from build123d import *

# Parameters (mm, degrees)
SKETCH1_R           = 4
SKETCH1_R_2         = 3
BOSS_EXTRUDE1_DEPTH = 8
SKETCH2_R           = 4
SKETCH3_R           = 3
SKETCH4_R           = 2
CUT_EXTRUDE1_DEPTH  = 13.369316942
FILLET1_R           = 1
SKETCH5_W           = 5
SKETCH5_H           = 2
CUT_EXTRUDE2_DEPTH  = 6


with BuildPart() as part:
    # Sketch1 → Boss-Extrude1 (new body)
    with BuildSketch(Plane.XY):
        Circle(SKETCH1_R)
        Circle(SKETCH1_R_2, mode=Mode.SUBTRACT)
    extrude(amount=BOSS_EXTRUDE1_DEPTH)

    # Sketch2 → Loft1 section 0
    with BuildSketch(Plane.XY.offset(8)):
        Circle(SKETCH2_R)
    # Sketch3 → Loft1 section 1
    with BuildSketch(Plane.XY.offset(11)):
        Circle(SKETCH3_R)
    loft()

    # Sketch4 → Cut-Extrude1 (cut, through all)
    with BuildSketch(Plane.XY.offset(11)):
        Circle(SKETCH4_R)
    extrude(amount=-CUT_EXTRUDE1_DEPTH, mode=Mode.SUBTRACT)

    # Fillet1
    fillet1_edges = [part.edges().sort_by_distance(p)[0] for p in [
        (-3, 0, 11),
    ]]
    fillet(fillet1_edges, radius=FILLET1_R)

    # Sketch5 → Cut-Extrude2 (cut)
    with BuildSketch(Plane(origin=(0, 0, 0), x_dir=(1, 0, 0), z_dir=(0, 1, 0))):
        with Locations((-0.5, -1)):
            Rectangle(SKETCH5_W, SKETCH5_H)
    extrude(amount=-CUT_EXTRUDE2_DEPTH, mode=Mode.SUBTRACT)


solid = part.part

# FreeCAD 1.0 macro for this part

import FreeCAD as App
import Part
import Sketcher
from FreeCAD import Vector


def edges_at(feature, points):
    """Names of the edges that pass closest to the given points."""
    edges = feature.Shape.Edges
    near = lambda p: min(range(len(edges)), key=lambda i: edges[i].distToShape(Part.Vertex(*p))[0])
    return sorted({f"Edge{near(p) + 1}" for p in points})

doc = App.newDocument("Part")
body = doc.addObject("PartDesign::Body", "Body")

sketch1 = body.newObject("Sketcher::SketchObject", "Sketch")
sketch1.AttachmentSupport = (doc.getObject("XY_Plane"), [""])
sketch1.MapMode = "FlatFace"
sketch1.addGeometry([
    Part.Circle(Vector(0, 0, 0), Vector(0, 0, 1), 4),
    Part.Circle(Vector(0, 0, 0), Vector(0, 0, 1), 3),
], False)
sketch1.addConstraint([
    Sketcher.Constraint("Coincident", 0, 3, -1, 1),
    Sketcher.Constraint("Coincident", 1, 3, -1, 1),
    Sketcher.Constraint("Diameter", 0, 8.0),
    Sketcher.Constraint("Diameter", 1, 6.0),
])
pad1 = body.newObject("PartDesign::Pad", "Pad")
pad1.Profile = sketch1
pad1.Length = 8

sketch2 = body.newObject("Sketcher::SketchObject", "Sketch001")
sketch2.AttachmentSupport = (doc.getObject("XY_Plane"), [""])
sketch2.MapMode = "FlatFace"
sketch2.AttachmentOffset = App.Placement(Vector(0, 0, 8), App.Rotation())
sketch2.addGeometry(Part.Circle(Vector(0, 0, 0), Vector(0, 0, 1), 4), False)
sketch2.addConstraint([
    Sketcher.Constraint("Coincident", 0, 3, -1, 1),
    Sketcher.Constraint("Diameter", 0, 8.0),
])

sketch3 = body.newObject("Sketcher::SketchObject", "Sketch002")
sketch3.AttachmentSupport = (doc.getObject("XY_Plane"), [""])
sketch3.MapMode = "FlatFace"
sketch3.AttachmentOffset = App.Placement(Vector(0, 0, 11), App.Rotation())
sketch3.addGeometry(Part.Circle(Vector(0, 0, 0), Vector(0, 0, 1), 3), False)
sketch3.addConstraint([
    Sketcher.Constraint("Coincident", 0, 3, -1, 1),
    Sketcher.Constraint("Diameter", 0, 6.0),
])

additiveloft = body.newObject("PartDesign::AdditiveLoft", "AdditiveLoft")
additiveloft.Profile = sketch2
additiveloft.Sections = [sketch3]

sketch4 = body.newObject("Sketcher::SketchObject", "Sketch003")
sketch4.AttachmentSupport = (doc.getObject("XY_Plane"), [""])
sketch4.MapMode = "FlatFace"
sketch4.AttachmentOffset = App.Placement(Vector(0, 0, 11), App.Rotation())
sketch4.addGeometry(Part.Circle(Vector(0, 0, 0), Vector(0, 0, 1), 2), False)
sketch4.addConstraint([
    Sketcher.Constraint("Coincident", 0, 3, -1, 1),
    Sketcher.Constraint("Diameter", 0, 4.0),
])
pocket1 = body.newObject("PartDesign::Pocket", "Pocket")
pocket1.Profile = sketch4
pocket1.Type = "ThroughAll"
doc.recompute()

fillet = body.newObject("PartDesign::Fillet", "Fillet")
fillet.Base = (pocket1, edges_at(pocket1, [(-3, 0, 11)]))
fillet.Radius = 1

sketch5 = body.newObject("Sketcher::SketchObject", "Sketch004")
sketch5.AttachmentSupport = (doc.getObject("XZ_Plane"), [""])
sketch5.MapMode = "FlatFace"
sketch5.addGeometry([
    Part.LineSegment(Vector(-3, 0, 0), Vector(-3, 2, 0)),
    Part.LineSegment(Vector(-3, 2, 0), Vector(2, 2, 0)),
    Part.LineSegment(Vector(2, 2, 0), Vector(2, 0, 0)),
    Part.LineSegment(Vector(2, 0, 0), Vector(-3, 0, 0)),
], False)
sketch5.addConstraint([
    Sketcher.Constraint("Coincident", 0, 2, 1, 1),
    Sketcher.Constraint("Coincident", 1, 2, 2, 1),
    Sketcher.Constraint("Coincident", 2, 2, 3, 1),
    Sketcher.Constraint("Coincident", 3, 2, 0, 1),
    Sketcher.Constraint("Vertical", 0),
    Sketcher.Constraint("Horizontal", 1),
    Sketcher.Constraint("Vertical", 2),
    Sketcher.Constraint("Horizontal", 3),
    Sketcher.Constraint("PointOnObject", 2, 2, -1),
    Sketcher.Constraint("DistanceX", 1, 1, 1, 2, 5.0),
    Sketcher.Constraint("DistanceY", 0, 1, 0, 2, 2.0),
    Sketcher.Constraint("DistanceX", 0, 2, -1, 1, 3.0),
])
pocket2 = body.newObject("PartDesign::Pocket", "Pocket001")
pocket2.Profile = sketch5
pocket2.Length = 6
pocket2.Reversed = True

doc.recompute()
